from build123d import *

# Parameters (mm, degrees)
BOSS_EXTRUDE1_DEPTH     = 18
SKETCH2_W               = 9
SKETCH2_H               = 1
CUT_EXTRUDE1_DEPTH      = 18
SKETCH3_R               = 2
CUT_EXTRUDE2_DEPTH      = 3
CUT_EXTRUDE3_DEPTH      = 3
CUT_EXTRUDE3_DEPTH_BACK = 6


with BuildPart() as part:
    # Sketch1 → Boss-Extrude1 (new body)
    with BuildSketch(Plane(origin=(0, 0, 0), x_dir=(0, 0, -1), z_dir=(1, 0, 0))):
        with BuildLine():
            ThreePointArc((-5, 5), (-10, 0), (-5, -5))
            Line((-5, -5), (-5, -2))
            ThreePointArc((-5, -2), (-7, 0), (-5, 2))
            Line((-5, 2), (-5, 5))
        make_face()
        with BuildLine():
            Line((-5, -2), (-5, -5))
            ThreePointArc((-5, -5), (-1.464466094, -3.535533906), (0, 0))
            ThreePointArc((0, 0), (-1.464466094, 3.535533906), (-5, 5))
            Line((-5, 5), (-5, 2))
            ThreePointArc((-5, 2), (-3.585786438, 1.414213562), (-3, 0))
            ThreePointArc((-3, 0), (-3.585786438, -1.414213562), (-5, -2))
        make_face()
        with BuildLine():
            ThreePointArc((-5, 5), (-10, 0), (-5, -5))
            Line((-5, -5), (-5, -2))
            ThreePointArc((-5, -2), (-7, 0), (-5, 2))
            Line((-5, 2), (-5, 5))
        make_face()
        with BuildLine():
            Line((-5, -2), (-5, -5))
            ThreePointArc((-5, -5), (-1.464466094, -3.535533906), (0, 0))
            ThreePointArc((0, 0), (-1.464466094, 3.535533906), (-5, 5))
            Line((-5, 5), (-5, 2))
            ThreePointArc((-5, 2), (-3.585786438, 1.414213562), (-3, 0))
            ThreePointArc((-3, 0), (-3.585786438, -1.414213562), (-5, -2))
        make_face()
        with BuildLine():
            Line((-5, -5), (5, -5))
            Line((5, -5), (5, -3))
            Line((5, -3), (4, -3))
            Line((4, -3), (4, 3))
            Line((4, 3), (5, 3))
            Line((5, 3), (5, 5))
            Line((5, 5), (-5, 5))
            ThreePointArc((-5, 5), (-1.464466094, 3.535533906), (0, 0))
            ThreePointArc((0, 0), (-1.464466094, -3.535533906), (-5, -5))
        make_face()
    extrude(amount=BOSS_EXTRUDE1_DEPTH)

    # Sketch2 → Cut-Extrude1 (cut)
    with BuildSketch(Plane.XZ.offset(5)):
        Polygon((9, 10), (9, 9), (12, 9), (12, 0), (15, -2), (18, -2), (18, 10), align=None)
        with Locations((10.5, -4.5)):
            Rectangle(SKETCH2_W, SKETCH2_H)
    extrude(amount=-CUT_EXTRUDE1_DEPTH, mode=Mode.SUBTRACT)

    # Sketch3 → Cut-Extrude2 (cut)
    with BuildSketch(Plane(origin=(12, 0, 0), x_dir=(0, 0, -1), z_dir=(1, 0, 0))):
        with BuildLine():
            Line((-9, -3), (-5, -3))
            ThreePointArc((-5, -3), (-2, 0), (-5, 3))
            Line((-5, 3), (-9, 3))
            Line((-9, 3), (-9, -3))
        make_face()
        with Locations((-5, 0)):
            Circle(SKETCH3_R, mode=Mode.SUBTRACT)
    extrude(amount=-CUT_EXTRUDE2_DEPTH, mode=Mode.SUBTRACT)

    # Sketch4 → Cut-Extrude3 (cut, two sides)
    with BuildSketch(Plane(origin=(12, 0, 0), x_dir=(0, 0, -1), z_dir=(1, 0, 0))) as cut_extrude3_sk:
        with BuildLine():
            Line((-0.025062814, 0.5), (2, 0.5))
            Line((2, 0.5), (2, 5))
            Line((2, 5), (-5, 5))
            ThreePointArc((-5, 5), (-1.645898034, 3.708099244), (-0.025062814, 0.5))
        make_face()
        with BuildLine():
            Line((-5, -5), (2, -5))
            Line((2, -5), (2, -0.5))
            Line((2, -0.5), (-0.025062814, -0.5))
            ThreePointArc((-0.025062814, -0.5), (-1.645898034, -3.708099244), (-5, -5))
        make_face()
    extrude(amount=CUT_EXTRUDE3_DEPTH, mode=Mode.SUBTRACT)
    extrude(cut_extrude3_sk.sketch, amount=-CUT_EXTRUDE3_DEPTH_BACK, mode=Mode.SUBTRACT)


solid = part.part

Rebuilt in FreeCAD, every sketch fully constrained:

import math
import FreeCAD as App
import Part
import Sketcher
Q = App.Units.Quantity

doc = App.newDocument("Part")
body = doc.addObject("PartDesign::Body", "Body")

sketch1 = body.newObject("Sketcher::SketchObject", "Sketch")
sketch1.AttachmentSupport = (doc.getObject("YZ_Plane"), [""])
sketch1.MapMode = "FlatFace"
sketch1.addGeometry(Part.ArcOfCircle(Part.Circle(App.Vector(0, 5, 0), App.Vector(0, 0, 1), 5), math.radians(0), math.radians(180)), False)
sketch1.addGeometry(Part.LineSegment(App.Vector(-5, 5, 0), App.Vector(-5, -5, 0)), False)
sketch1.addGeometry(Part.LineSegment(App.Vector(-5, -5, 0), App.Vector(-3, -5, 0)), False)
sketch1.addGeometry(Part.LineSegment(App.Vector(-3, -5, 0), App.Vector(-3, -4, 0)), False)
sketch1.addGeometry(Part.LineSegment(App.Vector(-3, -4, 0), App.Vector(3, -4, 0)), False)
sketch1.addGeometry(Part.LineSegment(App.Vector(3, -4, 0), App.Vector(3, -5, 0)), False)
sketch1.addGeometry(Part.LineSegment(App.Vector(3, -5, 0), App.Vector(5, -5, 0)), False)
sketch1.addGeometry(Part.LineSegment(App.Vector(5, -5, 0), App.Vector(5, 5, 0)), False)
sketch1.addGeometry(Part.ArcOfCircle(Part.Circle(App.Vector(0, 5, 0), App.Vector(0, 0, 1), 2), math.radians(0), math.radians(180)), False)
sketch1.addGeometry(Part.ArcOfCircle(Part.Circle(App.Vector(0, 5, 0), App.Vector(0, 0, 1), 2), math.radians(-90), math.radians(0)), False)
sketch1.addGeometry(Part.ArcOfCircle(Part.Circle(App.Vector(0, 5, 0), App.Vector(0, 0, 1), 2), math.radians(-180), math.radians(-90)), False)
sketch1.addConstraint(Sketcher.Constraint("Tangent", 0, 2, 1, 1))
sketch1.addConstraint(Sketcher.Constraint("Coincident", 1, 2, 2, 1))
sketch1.addConstraint(Sketcher.Constraint("Coincident", 2, 2, 3, 1))
sketch1.addConstraint(Sketcher.Constraint("Coincident", 3, 2, 4, 1))
sketch1.addConstraint(Sketcher.Constraint("Coincident", 4, 2, 5, 1))
sketch1.addConstraint(Sketcher.Constraint("Coincident", 5, 2, 6, 1))
sketch1.addConstraint(Sketcher.Constraint("Coincident", 6, 2, 7, 1))
sketch1.addConstraint(Sketcher.Constraint("Tangent", 7, 2, 0, 1))
sketch1.addConstraint(Sketcher.Constraint("Tangent", 8, 1, 9, 2))
sketch1.addConstraint(Sketcher.Constraint("Tangent", 9, 1, 10, 2))
sketch1.addConstraint(Sketcher.Constraint("Tangent", 10, 1, 8, 2))
sketch1.addConstraint(Sketcher.Constraint("Vertical", 1))
sketch1.addConstraint(Sketcher.Constraint("Horizontal", 2))
sketch1.addConstraint(Sketcher.Constraint("Vertical", 3))
sketch1.addConstraint(Sketcher.Constraint("Horizontal", 4))
sketch1.addConstraint(Sketcher.Constraint("Vertical", 5))
sketch1.addConstraint(Sketcher.Constraint("Horizontal", 6))
sketch1.addConstraint(Sketcher.Constraint("Vertical", 7))
sketch1.addConstraint(Sketcher.Constraint("Coincident", 8, 3, 0, 3))
sketch1.addConstraint(Sketcher.Constraint("Symmetric", 0, 2, 6, 2, -1, 1))
sketch1.addConstraint(Sketcher.Constraint("Symmetric", 2, 2, 5, 2, -2))
sketch1.addConstraint(Sketcher.Constraint("PointOnObject", 9, 1, -2))
sketch1.addConstraint(Sketcher.Constraint("Horizontal", 7, 2, 8, 1))
sketch1.addConstraint(Sketcher.Constraint("Horizontal", 8, 1, 10, 1))
sketch1.addConstraint(Sketcher.Constraint("Radius", 0, Q("5 mm")))
sketch1.addConstraint(Sketcher.Constraint("Radius", 8, Q("2 mm")))
sketch1.addConstraint(Sketcher.Constraint("DistanceX", 2, 1, 2, 2, Q("2 mm")))
sketch1.addConstraint(Sketcher.Constraint("DistanceY", 1, 2, 1, 1, Q("10 mm")))
sketch1.addConstraint(Sketcher.Constraint("DistanceY", 3, 1, 3, 2, Q("1 mm")))
pad1 = body.newObject("PartDesign::Pad", "Pad")
pad1.Profile = sketch1
pad1.Length = 18

sketch2 = body.newObject("Sketcher::SketchObject", "Sketch001")
sketch2.AttachmentSupport = (doc.getObject("XZ_Plane"), [""])
sketch2.MapMode = "FlatFace"
sketch2.AttachmentOffset = App.Placement(App.Vector(0, 0, 5), App.Rotation())
sketch2.addGeometry(Part.LineSegment(App.Vector(9, 10, 0), App.Vector(9, 9, 0)), False)
sketch2.addGeometry(Part.LineSegment(App.Vector(9, 9, 0), App.Vector(12, 9, 0)), False)
sketch2.addGeometry(Part.LineSegment(App.Vector(12, 9, 0), App.Vector(12, 0, 0)), False)
sketch2.addGeometry(Part.LineSegment(App.Vector(12, 0, 0), App.Vector(15, -2, 0)), False)
sketch2.addGeometry(Part.LineSegment(App.Vector(15, -2, 0), App.Vector(18, -2, 0)), False)
sketch2.addGeometry(Part.LineSegment(App.Vector(18, -2, 0), App.Vector(18, 10, 0)), False)
sketch2.addGeometry(Part.LineSegment(App.Vector(18, 10, 0), App.Vector(9, 10, 0)), False)
sketch2.addGeometry(Part.LineSegment(App.Vector(6, -4, 0), App.Vector(6, -5, 0)), False)
sketch2.addGeometry(Part.LineSegment(App.Vector(6, -5, 0), App.Vector(15, -5, 0)), False)
sketch2.addGeometry(Part.LineSegment(App.Vector(15, -5, 0), App.Vector(15, -4, 0)), False)
sketch2.addGeometry(Part.LineSegment(App.Vector(15, -4, 0), App.Vector(6, -4, 0)), False)
sketch2.addConstraint(Sketcher.Constraint("Coincident", 0, 2, 1, 1))
sketch2.addConstraint(Sketcher.Constraint("Coincident", 1, 2, 2, 1))
sketch2.addConstraint(Sketcher.Constraint("Coincident", 2, 2, 3, 1))
sketch2.addConstraint(Sketcher.Constraint("Coincident", 3, 2, 4, 1))
sketch2.addConstraint(Sketcher.Constraint("Coincident", 4, 2, 5, 1))
sketch2.addConstraint(Sketcher.Constraint("Coincident", 5, 2, 6, 1))
sketch2.addConstraint(Sketcher.Constraint("Coincident", 6, 2, 0, 1))
sketch2.addConstraint(Sketcher.Constraint("Coincident", 7, 2, 8, 1))
sketch2.addConstraint(Sketcher.Constraint("Coincident", 8, 2, 9, 1))
sketch2.addConstraint(Sketcher.Constraint("Coincident", 9, 2, 10, 1))
sketch2.addConstraint(Sketcher.Constraint("Coincident", 10, 2, 7, 1))
sketch2.addConstraint(Sketcher.Constraint("Vertical", 0))
sketch2.addConstraint(Sketcher.Constraint("Horizontal", 1))
sketch2.addConstraint(Sketcher.Constraint("Vertical", 2))
sketch2.addConstraint(Sketcher.Constraint("Horizontal", 4))
sketch2.addConstraint(Sketcher.Constraint("Vertical", 5))
sketch2.addConstraint(Sketcher.Constraint("Horizontal", 6))
sketch2.addConstraint(Sketcher.Constraint("Vertical", 7))
sketch2.addConstraint(Sketcher.Constraint("Horizontal", 8))
sketch2.addConstraint(Sketcher.Constraint("Vertical", 9))
sketch2.addConstraint(Sketcher.Constraint("Horizontal", 10))
sketch2.addConstraint(Sketcher.Constraint("PointOnObject", 2, 2, -1))
sketch2.addConstraint(Sketcher.Constraint("Vertical", 3, 2, 8, 2))
sketch2.addConstraint(Sketcher.Constraint("Equal", 1, 4))
sketch2.addConstraint(Sketcher.Constraint("Equal", 6, 8))
sketch2.addConstraint(Sketcher.Constraint("Equal", 10, 2))
sketch2.addConstraint(Sketcher.Constraint("Equal", 0, 7))
sketch2.addConstraint(Sketcher.Constraint("DistanceX", 1, 1, 1, 2, Q("3 mm")))
sketch2.addConstraint(Sketcher.Constraint("DistanceX", 6, 2, 6, 1, Q("9 mm")))
sketch2.addConstraint(Sketcher.Constraint("DistanceY", 0, 2, 0, 1, Q("1 mm")))
sketch2.addConstraint(Sketcher.Constraint("DistanceY", 5, 1, 5, 2, Q("12 mm")))
sketch2.addConstraint(Sketcher.Constraint("DistanceX", -1, 1, 0, 2, Q("9 mm")))
sketch2.addConstraint(Sketcher.Constraint("DistanceY", 7, 2, -1, 1, Q("5 mm")))
pocket1 = body.newObject("PartDesign::Pocket", "Pocket")
pocket1.Profile = sketch2
pocket1.Length = 18

sketch3 = body.newObject("Sketcher::SketchObject", "Sketch002")
sketch3.AttachmentSupport = (doc.getObject("YZ_Plane"), [""])
sketch3.MapMode = "FlatFace"
sketch3.AttachmentOffset = App.Placement(App.Vector(0, 0, 12), App.Rotation())
sketch3.addGeometry(Part.LineSegment(App.Vector(-3, 9, 0), App.Vector(-3, 5, 0)), False)
sketch3.addGeometry(Part.ArcOfCircle(Part.Circle(App.Vector(0, 5, 0), App.Vector(0, 0, 1), 3), math.radians(180), math.radians(360)), False)
sketch3.addGeometry(Part.LineSegment(App.Vector(3, 5, 0), App.Vector(3, 9, 0)), False)
sketch3.addGeometry(Part.LineSegment(App.Vector(3, 9, 0), App.Vector(-3, 9, 0)), False)
sketch3.addGeometry(Part.Circle(App.Vector(0, 5, 0), App.Vector(0, 0, 1), 2), False)
sketch3.addConstraint(Sketcher.Constraint("Tangent", 0, 2, 1, 1))
sketch3.addConstraint(Sketcher.Constraint("Tangent", 1, 2, 2, 1))
sketch3.addConstraint(Sketcher.Constraint("Coincident", 2, 2, 3, 1))
sketch3.addConstraint(Sketcher.Constraint("Coincident", 3, 2, 0, 1))
sketch3.addConstraint(Sketcher.Constraint("Vertical", 0))
sketch3.addConstraint(Sketcher.Constraint("Vertical", 2))
sketch3.addConstraint(Sketcher.Constraint("Horizontal", 3))
sketch3.addConstraint(Sketcher.Constraint("Coincident", 4, 3, 1, 3))
sketch3.addConstraint(Sketcher.Constraint("PointOnObject", 1, 3, -2))
sketch3.addConstraint(Sketcher.Constraint("Diameter", 4, Q("4 mm")))
sketch3.addConstraint(Sketcher.Constraint("Radius", 1, Q("3 mm")))
sketch3.addConstraint(Sketcher.Constraint("DistanceY", 0, 2, 0, 1, Q("4 mm")))
sketch3.addConstraint(Sketcher.Constraint("DistanceY", -1, 1, 1, 3, Q("5 mm")))
pocket2 = body.newObject("PartDesign::Pocket", "Pocket001")
pocket2.Profile = sketch3
pocket2.Length = 3

sketch4 = body.newObject("Sketcher::SketchObject", "Sketch003")
sketch4.AttachmentSupport = (doc.getObject("YZ_Plane"), [""])
sketch4.MapMode = "FlatFace"
sketch4.AttachmentOffset = App.Placement(App.Vector(0, 0, 12), App.Rotation())
sketch4.addGeometry(Part.LineSegment(App.Vector(0.5, 0, 0), App.Vector(0.5, -2, 0)), False)
sketch4.addGeometry(Part.LineSegment(App.Vector(0.5, -2, 0), App.Vector(5, -2, 0)), False)
sketch4.addGeometry(Part.LineSegment(App.Vector(5, -2, 0), App.Vector(5, 5, 0)), False)
sketch4.addGeometry(Part.ArcOfCircle(Part.Circle(App.Vector(0, 5, 0), App.Vector(0, 0, 1), 5), math.radians(-84), math.radians(0)), False)
sketch4.addGeometry(Part.LineSegment(App.Vector(-5, 5, 0), App.Vector(-5, -2, 0)), False)
sketch4.addGeometry(Part.LineSegment(App.Vector(-5, -2, 0), App.Vector(-0.5, -2, 0)), False)
sketch4.addGeometry(Part.LineSegment(App.Vector(-0.5, -2, 0), App.Vector(-0.5, 0, 0)), False)
sketch4.addGeometry(Part.ArcOfCircle(Part.Circle(App.Vector(0, 5, 0), App.Vector(0, 0, 1), 5), math.radians(180), math.radians(264)), False)
sketch4.addConstraint(Sketcher.Constraint("Coincident", 0, 2, 1, 1))
sketch4.addConstraint(Sketcher.Constraint("Coincident", 1, 2, 2, 1))
sketch4.addConstraint(Sketcher.Constraint("Tangent", 2, 2, 3, 2))
sketch4.addConstraint(Sketcher.Constraint("Coincident", 3, 1, 0, 1))
sketch4.addConstraint(Sketcher.Constraint("Coincident", 4, 2, 5, 1))
sketch4.addConstraint(Sketcher.Constraint("Coincident", 5, 2, 6, 1))
sketch4.addConstraint(Sketcher.Constraint("Coincident", 6, 2, 7, 2))
sketch4.addConstraint(Sketcher.Constraint("Tangent", 7, 1, 4, 1))
sketch4.addConstraint(Sketcher.Constraint("Vertical", 0))
sketch4.addConstraint(Sketcher.Constraint("Horizontal", 1))
sketch4.addConstraint(Sketcher.Constraint("Vertical", 2))
sketch4.addConstraint(Sketcher.Constraint("Vertical", 4))
sketch4.addConstraint(Sketcher.Constraint("Horizontal", 5))
sketch4.addConstraint(Sketcher.Constraint("Vertical", 6))
sketch4.addConstraint(Sketcher.Constraint("Coincident", 7, 3, 3, 3))
sketch4.addConstraint(Sketcher.Constraint("Equal", 3, 7))
sketch4.addConstraint(Sketcher.Constraint("Symmetric", 1, 2, 4, 2, -2))
sketch4.addConstraint(Sketcher.Constraint("Horizontal", 3, 1, 6, 2))
sketch4.addConstraint(Sketcher.Constraint("Radius", 3, Q("5 mm")))
sketch4.addConstraint(Sketcher.Constraint("DistanceY", 2, 1, 2, 2, Q("7 mm")))
sketch4.addConstraint(Sketcher.Constraint("DistanceX", 1, 1, 1, 2, Q("4.5 mm")))
sketch4.addConstraint(Sketcher.Constraint("DistanceY", -1, 1, 3, 3, Q("5 mm")))
pocket3 = body.newObject("PartDesign::Pocket", "Pocket002")
pocket3.Profile = sketch4
pocket3.Type = "TwoLengths"
pocket3.Length = 3
pocket3.Length2 = 6
pocket3.Reversed = True

doc.recompute()
